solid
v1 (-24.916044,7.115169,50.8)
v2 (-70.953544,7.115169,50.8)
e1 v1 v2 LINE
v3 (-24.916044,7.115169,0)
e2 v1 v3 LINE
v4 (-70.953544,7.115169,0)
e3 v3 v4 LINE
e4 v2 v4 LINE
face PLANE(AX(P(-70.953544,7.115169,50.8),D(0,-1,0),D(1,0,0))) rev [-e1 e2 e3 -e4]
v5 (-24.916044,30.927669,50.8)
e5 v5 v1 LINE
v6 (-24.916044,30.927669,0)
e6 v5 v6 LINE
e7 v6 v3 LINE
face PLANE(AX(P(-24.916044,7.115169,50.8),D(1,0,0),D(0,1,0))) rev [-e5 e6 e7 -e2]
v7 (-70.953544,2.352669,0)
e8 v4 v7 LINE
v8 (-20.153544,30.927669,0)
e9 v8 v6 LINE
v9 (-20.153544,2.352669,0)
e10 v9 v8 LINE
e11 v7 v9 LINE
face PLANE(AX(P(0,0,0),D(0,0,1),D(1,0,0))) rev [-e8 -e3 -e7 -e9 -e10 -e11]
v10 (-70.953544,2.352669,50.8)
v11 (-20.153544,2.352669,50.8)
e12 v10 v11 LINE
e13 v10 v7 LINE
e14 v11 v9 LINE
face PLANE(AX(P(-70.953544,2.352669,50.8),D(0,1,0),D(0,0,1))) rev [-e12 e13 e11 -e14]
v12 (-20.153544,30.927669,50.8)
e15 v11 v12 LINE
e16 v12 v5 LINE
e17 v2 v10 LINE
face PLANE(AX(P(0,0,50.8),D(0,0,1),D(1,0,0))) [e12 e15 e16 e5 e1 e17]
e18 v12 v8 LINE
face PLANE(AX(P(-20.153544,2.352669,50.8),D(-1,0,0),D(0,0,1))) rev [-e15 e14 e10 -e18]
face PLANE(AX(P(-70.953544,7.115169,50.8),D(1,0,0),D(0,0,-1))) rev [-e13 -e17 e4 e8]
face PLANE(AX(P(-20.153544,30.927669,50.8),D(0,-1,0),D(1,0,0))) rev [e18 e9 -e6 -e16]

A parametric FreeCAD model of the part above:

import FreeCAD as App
import Part
import Sketcher
from FreeCAD import Vector
Q = App.Units.Quantity

doc = App.newDocument("Part")
body = doc.addObject("PartDesign::Body", "Body")

# Sketch on XY plane
sketch1 = body.newObject("Sketcher::SketchObject", "Sketch")
sketch1.AttachmentSupport = (doc.getObject("XY_Plane"), [""])
sketch1.MapMode = "FlatFace"
sketch1.addGeometry([
    Part.LineSegment(Vector(-20.2, 2.4, 0), Vector(-20.2, 30.9, 0)),  # 0
    Part.LineSegment(Vector(-20.2, 30.9, 0), Vector(-24.9, 30.9, 0)),  # 1
    Part.LineSegment(Vector(-24.9, 30.9, 0), Vector(-24.9, 7.1, 0)),  # 2
    Part.LineSegment(Vector(-24.9, 7.1, 0), Vector(-71, 7.1, 0)),  # 3
    Part.LineSegment(Vector(-71, 7.1, 0), Vector(-71, 2.4, 0)),  # 4
    Part.LineSegment(Vector(-71, 2.4, 0), Vector(-20.2, 2.4, 0)),  # 5
], False)
sketch1.addConstraint([
    Sketcher.Constraint("Coincident", 0, 2, 1, 1),
    Sketcher.Constraint("Coincident", 1, 2, 2, 1),
    Sketcher.Constraint("Coincident", 2, 2, 3, 1),
    Sketcher.Constraint("Coincident", 3, 2, 4, 1),
    Sketcher.Constraint("Coincident", 4, 2, 5, 1),
    Sketcher.Constraint("Coincident", 5, 2, 0, 1),
    Sketcher.Constraint("Vertical", 0),
    Sketcher.Constraint("Horizontal", 1),
    Sketcher.Constraint("Vertical", 2),
    Sketcher.Constraint("Horizontal", 3),
    Sketcher.Constraint("Vertical", 4),
    Sketcher.Constraint("Horizontal", 5),
    Sketcher.Constraint("Equal", 1, 4),
    Sketcher.Constraint("DistanceX", 5, 1, 5, 2, Q("2 in")),
    Sketcher.Constraint("DistanceX", 1, 2, 1, 1, Q("0.1875 in")),
    Sketcher.Constraint("DistanceY", 0, 1, 0, 2, Q("1.125 in")),
    Sketcher.Constraint("DistanceY", -1, 1, 0, 2, 30.927669),
    Sketcher.Constraint("DistanceX", 0, 2, -1, 1, 20.153544),
])
pad1 = body.newObject("PartDesign::Pad", "Pad")
pad1.Profile = sketch1
pad1.Length = Q("2 in")

doc.recompute()
